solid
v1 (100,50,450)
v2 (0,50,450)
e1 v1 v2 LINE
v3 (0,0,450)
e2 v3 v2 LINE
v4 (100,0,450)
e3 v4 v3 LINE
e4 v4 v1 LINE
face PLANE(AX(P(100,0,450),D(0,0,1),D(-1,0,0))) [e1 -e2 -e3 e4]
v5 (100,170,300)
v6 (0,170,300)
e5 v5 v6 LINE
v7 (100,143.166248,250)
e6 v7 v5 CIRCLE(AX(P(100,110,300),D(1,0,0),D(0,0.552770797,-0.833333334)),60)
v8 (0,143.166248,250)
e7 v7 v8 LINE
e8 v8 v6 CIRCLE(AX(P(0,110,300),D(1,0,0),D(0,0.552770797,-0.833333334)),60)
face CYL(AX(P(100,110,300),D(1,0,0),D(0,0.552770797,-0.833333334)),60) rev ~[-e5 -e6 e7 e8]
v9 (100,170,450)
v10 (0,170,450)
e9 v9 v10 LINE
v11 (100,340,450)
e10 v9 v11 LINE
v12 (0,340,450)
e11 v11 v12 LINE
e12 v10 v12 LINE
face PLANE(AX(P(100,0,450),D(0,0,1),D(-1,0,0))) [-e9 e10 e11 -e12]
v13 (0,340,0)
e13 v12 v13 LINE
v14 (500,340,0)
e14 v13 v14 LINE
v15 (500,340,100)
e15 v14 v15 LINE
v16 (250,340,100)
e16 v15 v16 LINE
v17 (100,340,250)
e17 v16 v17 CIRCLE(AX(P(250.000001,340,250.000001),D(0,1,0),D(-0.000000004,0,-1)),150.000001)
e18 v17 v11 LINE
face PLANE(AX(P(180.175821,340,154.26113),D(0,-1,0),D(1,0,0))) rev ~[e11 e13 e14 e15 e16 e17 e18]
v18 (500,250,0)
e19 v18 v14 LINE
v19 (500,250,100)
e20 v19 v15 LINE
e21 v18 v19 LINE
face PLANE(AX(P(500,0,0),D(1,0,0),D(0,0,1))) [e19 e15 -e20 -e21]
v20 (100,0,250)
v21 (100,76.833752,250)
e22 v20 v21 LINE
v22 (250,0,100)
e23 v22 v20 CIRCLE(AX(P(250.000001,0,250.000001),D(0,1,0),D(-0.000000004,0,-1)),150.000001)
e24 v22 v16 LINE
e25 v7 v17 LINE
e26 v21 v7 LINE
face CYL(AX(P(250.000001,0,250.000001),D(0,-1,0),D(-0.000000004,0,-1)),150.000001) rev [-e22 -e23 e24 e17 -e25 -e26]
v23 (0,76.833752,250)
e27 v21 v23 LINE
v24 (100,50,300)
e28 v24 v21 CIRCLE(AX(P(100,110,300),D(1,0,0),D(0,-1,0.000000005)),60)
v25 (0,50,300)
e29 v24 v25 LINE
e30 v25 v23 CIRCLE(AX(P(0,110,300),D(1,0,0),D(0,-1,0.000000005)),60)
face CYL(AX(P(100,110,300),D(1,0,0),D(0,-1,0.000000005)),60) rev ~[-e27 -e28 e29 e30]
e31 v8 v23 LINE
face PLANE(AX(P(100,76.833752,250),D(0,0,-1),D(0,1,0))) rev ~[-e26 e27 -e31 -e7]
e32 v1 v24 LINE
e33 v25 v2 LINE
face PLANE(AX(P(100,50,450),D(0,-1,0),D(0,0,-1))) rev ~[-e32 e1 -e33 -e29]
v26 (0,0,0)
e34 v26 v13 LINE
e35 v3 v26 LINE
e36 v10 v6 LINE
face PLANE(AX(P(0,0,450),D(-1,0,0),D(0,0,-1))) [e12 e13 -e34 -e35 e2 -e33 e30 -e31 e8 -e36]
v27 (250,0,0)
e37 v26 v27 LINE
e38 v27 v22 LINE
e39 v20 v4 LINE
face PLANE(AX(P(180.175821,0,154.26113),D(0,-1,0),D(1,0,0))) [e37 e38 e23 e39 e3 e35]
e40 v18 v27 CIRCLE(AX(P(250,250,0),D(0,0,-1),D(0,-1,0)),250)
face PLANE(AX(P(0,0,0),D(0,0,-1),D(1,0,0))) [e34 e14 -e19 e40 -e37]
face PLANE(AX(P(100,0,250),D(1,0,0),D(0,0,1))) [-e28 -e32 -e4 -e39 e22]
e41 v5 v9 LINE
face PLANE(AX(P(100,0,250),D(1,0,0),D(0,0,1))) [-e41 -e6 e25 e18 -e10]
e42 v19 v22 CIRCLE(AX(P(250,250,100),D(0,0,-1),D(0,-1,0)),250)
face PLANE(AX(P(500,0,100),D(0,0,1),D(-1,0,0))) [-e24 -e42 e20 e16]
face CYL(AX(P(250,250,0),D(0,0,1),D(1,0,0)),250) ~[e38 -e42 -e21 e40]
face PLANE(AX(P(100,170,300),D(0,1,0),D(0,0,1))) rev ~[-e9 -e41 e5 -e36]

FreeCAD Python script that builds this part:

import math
import FreeCAD as App
import Part
import Sketcher


def edges_at(feature, points):
    """Names of the edges that pass closest to the given points."""
    edges = feature.Shape.Edges
    near = lambda p: min(range(len(edges)), key=lambda i: edges[i].distToShape(Part.Vertex(*p))[0])
    return sorted({f"Edge{near(p) + 1}" for p in points})

doc = App.newDocument("Part")
body = doc.addObject("PartDesign::Body", "Body")

sketch1 = doc.addObject("Sketcher::SketchObject", "Sketch")
body.addObject(sketch1)
sketch1.AttachmentSupport = (doc.XZ_Plane, [""])
sketch1.MapMode = "FlatFace"
sketch1.addGeometry([
    Part.LineSegment(App.Vector(0, 450, 0), App.Vector(0, 0, 0)),
    Part.LineSegment(App.Vector(0, 0, 0), App.Vector(500, 0, 0)),
    Part.LineSegment(App.Vector(500, 0, 0), App.Vector(500, 100, 0)),
    Part.LineSegment(App.Vector(500, 100, 0), App.Vector(250, 100, 0)),
    Part.ArcOfCircle(Part.Circle(App.Vector(250, 250, 0), App.Vector(0, 0, 1), 150), math.radians(-180), math.radians(-90)),
    Part.LineSegment(App.Vector(100, 250, 0), App.Vector(100, 450, 0)),
    Part.LineSegment(App.Vector(100, 450, 0), App.Vector(0, 450, 0)),
], False)
sketch1.addConstraint([
    Sketcher.Constraint("Coincident", 0, 2, 1, 1),
    Sketcher.Constraint("Coincident", 1, 2, 2, 1),
    Sketcher.Constraint("Coincident", 2, 2, 3, 1),
    Sketcher.Constraint("Tangent", 3, 2, 4, 2),
    Sketcher.Constraint("Tangent", 4, 1, 5, 1),
    Sketcher.Constraint("Coincident", 5, 2, 6, 1),
    Sketcher.Constraint("Coincident", 6, 2, 0, 1),
    Sketcher.Constraint("Vertical", 0),
    Sketcher.Constraint("Horizontal", 1),
    Sketcher.Constraint("Vertical", 2),
    Sketcher.Constraint("Horizontal", 3),
    Sketcher.Constraint("Vertical", 5),
    Sketcher.Constraint("Horizontal", 6),
    Sketcher.Constraint("Coincident", 0, 2, -1, 1),
    Sketcher.Constraint("Equal", 6, 2),
    Sketcher.Constraint("Radius", 4, 150.000001),
    Sketcher.Constraint("DistanceX", 1, 1, 1, 2, 500.0),
    Sketcher.Constraint("DistanceX", 3, 2, 3, 1, 250.0),
    Sketcher.Constraint("DistanceY", 0, 2, 0, 1, 450.0),
])
pad1 = doc.addObject("PartDesign::Pad", "Pad")
body.addObject(pad1)
pad1.Profile = sketch1
pad1.Length = 340
pad1.Reversed = True
doc.recompute()

fillet = doc.addObject("PartDesign::Fillet", "Fillet")
body.addObject(fillet)
fillet.Base = (pad1, edges_at(pad1, [(500, 0, 50)]))
fillet.Radius = 250

sketch2 = doc.addObject("Sketcher::SketchObject", "Sketch001")
body.addObject(sketch2)
sketch2.AttachmentSupport = (doc.YZ_Plane, [""])
sketch2.MapMode = "FlatFace"
sketch2.AttachmentOffset = App.Placement(App.Vector(0, 0, 100), App.Rotation())
sketch2.addGeometry([
    Part.LineSegment(App.Vector(50, 450, 0), App.Vector(50, 300, 0)),
    Part.ArcOfCircle(Part.Circle(App.Vector(110, 300, 0), App.Vector(0, 0, 1), 60), math.radians(180), math.radians(236)),
    Part.LineSegment(App.Vector(77, 250, 0), App.Vector(143, 250, 0)),
    Part.ArcOfCircle(Part.Circle(App.Vector(110, 300, 0), App.Vector(0, 0, 1), 60), math.radians(-56), math.radians(0)),
    Part.LineSegment(App.Vector(170, 300, 0), App.Vector(170, 450, 0)),
    Part.LineSegment(App.Vector(170, 450, 0), App.Vector(50, 450, 0)),
], False)
sketch2.addConstraint([
    Sketcher.Constraint("Tangent", 0, 2, 1, 1),
    Sketcher.Constraint("Coincident", 1, 2, 2, 1),
    Sketcher.Constraint("Coincident", 2, 2, 3, 1),
    Sketcher.Constraint("Tangent", 3, 2, 4, 1),
    Sketcher.Constraint("Coincident", 4, 2, 5, 1),
    Sketcher.Constraint("Coincident", 5, 2, 0, 1),
    Sketcher.Constraint("Vertical", 0),
    Sketcher.Constraint("Horizontal", 2),
    Sketcher.Constraint("Vertical", 4),
    Sketcher.Constraint("Horizontal", 5),
    Sketcher.Constraint("Coincident", 3, 3, 1, 3),
    Sketcher.Constraint("Equal", 1, 3),
    Sketcher.Constraint("Radius", 1, 60.0),
    Sketcher.Constraint("DistanceY", 0, 2, 0, 1, 150.0),
    Sketcher.Constraint("DistanceX", -1, 1, 1, 3, 110.0),
    Sketcher.Constraint("DistanceY", -1, 1, 1, 3, 300.0),
    Sketcher.Constraint("DistanceY", -1, 1, 1, 2, 250.0),
])
pocket1 = doc.addObject("PartDesign::Pocket", "Pocket")
body.addObject(pocket1)
pocket1.Profile = sketch2
pocket1.Length = 277.5

doc.recompute()
